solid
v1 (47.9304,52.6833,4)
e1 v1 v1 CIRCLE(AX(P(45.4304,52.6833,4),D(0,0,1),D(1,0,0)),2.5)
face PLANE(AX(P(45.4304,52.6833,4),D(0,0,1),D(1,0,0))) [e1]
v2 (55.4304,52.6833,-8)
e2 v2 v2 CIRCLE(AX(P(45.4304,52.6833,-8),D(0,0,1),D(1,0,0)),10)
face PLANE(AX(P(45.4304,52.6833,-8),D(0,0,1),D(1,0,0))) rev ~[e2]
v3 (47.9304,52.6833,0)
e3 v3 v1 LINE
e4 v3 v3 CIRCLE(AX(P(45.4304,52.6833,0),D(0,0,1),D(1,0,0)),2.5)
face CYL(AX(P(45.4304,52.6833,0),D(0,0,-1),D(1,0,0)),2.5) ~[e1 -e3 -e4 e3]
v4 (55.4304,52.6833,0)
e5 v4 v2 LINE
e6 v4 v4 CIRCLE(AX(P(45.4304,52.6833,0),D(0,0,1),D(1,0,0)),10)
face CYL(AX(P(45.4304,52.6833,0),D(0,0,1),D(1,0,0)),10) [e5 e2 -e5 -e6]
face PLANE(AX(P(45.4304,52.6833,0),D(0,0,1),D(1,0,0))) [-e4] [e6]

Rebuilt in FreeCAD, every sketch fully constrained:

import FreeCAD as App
import Part
import Sketcher

V = App.Vector
Q = App.Units.Quantity

doc = App.newDocument("Part")
body = doc.addObject("PartDesign::Body", "Body")

# Sketch on XY plane
sketch1 = body.newObject("Sketcher::SketchObject", "Sketch")
sketch1.AttachmentSupport = (doc.getObject("XY_Plane"), [""])
sketch1.MapMode = "FlatFace"
sketch1.addGeometry(Part.Circle(V(45, 53, 0), V(0, 0, 1), 10), False)
sketch1.addConstraint(Sketcher.Constraint("Diameter", 0, Q("20 mm")))
sketch1.addConstraint(Sketcher.Constraint("DistanceX", -1, 1, 0, 3, Q("45.4304 mm")))
sketch1.addConstraint(Sketcher.Constraint("DistanceY", -1, 1, 0, 3, Q("52.6833 mm")))
pad1 = body.newObject("PartDesign::Pad", "Pad")
pad1.Profile = sketch1
pad1.Length = 8
pad1.Reversed = True

# Sketch on XY plane
sketch2 = body.newObject("Sketcher::SketchObject", "Sketch001")
sketch2.AttachmentSupport = (doc.getObject("XY_Plane"), [""])
sketch2.MapMode = "FlatFace"
sketch2.addGeometry(Part.Circle(V(45.4, 52.7, 0), V(0, 0, 1), 2.5), False)
sketch2.addConstraint(Sketcher.Constraint("Diameter", 0, Q("5 mm")))
sketch2.addConstraint(Sketcher.Constraint("DistanceX", -1, 1, 0, 3, Q("45.4304 mm")))
sketch2.addConstraint(Sketcher.Constraint("DistanceY", -1, 1, 0, 3, Q("52.6833 mm")))
pad2 = body.newObject("PartDesign::Pad", "Pad001")
pad2.Profile = sketch2
pad2.Length = 4

doc.recompute()
